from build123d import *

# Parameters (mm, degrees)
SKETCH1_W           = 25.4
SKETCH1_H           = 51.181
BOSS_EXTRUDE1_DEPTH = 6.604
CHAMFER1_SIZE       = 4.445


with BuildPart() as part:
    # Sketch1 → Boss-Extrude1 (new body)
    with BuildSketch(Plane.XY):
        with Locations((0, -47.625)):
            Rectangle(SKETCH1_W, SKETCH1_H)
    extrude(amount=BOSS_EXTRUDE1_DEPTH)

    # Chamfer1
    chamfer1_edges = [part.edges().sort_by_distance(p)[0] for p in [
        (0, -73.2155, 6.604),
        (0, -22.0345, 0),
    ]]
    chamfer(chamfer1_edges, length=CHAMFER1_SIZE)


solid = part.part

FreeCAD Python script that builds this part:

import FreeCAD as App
import Part
import Sketcher
from FreeCAD import Vector
Q = App.Units.Quantity


def edges_at(feature, points):
    """Names of the edges that pass closest to the given points."""
    edges = feature.Shape.Edges
    near = lambda p: min(range(len(edges)), key=lambda i: edges[i].distToShape(Part.Vertex(*p))[0])
    return sorted({f"Edge{near(p) + 1}" for p in points})


def add_polygon(sketch, points):
    """Adds a closed chain of lines whose ends are joined by coincident constraints."""
    first, n = sketch.GeometryCount, len(points)
    for a, b in zip(points, points[1:] + points[:1]):
        sketch.addGeometry(Part.LineSegment(App.Vector(*a, 0), App.Vector(*b, 0)), False)
    for i in range(n):
        sketch.addConstraint(Sketcher.Constraint("Coincident", first + i, 2, first + (i + 1) % n, 1))

doc = App.newDocument("Part")
body = doc.addObject("PartDesign::Body", "Body")

# Sketch on XY plane
sketch1 = body.newObject("Sketcher::SketchObject", "Sketch")
sketch1.AttachmentSupport = (doc.getObject("XY_Plane"), [""])
sketch1.MapMode = "FlatFace"
add_polygon(sketch1, [(-12.7, -22.0345), (-12.7, -73.2155), (12.7, -73.2155), (12.7, -22.0345)])  # lines 0-3
sketch1.addConstraint([
    Sketcher.Constraint("Vertical", 0),
    Sketcher.Constraint("Horizontal", 1),
    Sketcher.Constraint("Vertical", 2),
    Sketcher.Constraint("Horizontal", 3),
    Sketcher.Constraint("DistanceX", 1, 1, 1, 2, Q("1 in")),
    Sketcher.Constraint("DistanceX", 0, 2, -1, 1, Q("0.5 in")),
    Sketcher.Constraint("DistanceY", 0, 2, 0, 1, Q("2.015 in")),
    Sketcher.Constraint("DistanceY", 0, 2, -1, 1, Q("2.8825 in")),
])
pad1 = body.newObject("PartDesign::Pad", "Pad")
pad1.Profile = sketch1
pad1.Length = Q("0.26 in")
doc.recompute()

chamfer = body.newObject("PartDesign::Chamfer", "Chamfer")
chamfer.Base = (pad1, edges_at(pad1, [(0, -73.216, 6.604), (0, -22.035, 0)]))
chamfer.Size = Q("0.175 in")

doc.recompute()
